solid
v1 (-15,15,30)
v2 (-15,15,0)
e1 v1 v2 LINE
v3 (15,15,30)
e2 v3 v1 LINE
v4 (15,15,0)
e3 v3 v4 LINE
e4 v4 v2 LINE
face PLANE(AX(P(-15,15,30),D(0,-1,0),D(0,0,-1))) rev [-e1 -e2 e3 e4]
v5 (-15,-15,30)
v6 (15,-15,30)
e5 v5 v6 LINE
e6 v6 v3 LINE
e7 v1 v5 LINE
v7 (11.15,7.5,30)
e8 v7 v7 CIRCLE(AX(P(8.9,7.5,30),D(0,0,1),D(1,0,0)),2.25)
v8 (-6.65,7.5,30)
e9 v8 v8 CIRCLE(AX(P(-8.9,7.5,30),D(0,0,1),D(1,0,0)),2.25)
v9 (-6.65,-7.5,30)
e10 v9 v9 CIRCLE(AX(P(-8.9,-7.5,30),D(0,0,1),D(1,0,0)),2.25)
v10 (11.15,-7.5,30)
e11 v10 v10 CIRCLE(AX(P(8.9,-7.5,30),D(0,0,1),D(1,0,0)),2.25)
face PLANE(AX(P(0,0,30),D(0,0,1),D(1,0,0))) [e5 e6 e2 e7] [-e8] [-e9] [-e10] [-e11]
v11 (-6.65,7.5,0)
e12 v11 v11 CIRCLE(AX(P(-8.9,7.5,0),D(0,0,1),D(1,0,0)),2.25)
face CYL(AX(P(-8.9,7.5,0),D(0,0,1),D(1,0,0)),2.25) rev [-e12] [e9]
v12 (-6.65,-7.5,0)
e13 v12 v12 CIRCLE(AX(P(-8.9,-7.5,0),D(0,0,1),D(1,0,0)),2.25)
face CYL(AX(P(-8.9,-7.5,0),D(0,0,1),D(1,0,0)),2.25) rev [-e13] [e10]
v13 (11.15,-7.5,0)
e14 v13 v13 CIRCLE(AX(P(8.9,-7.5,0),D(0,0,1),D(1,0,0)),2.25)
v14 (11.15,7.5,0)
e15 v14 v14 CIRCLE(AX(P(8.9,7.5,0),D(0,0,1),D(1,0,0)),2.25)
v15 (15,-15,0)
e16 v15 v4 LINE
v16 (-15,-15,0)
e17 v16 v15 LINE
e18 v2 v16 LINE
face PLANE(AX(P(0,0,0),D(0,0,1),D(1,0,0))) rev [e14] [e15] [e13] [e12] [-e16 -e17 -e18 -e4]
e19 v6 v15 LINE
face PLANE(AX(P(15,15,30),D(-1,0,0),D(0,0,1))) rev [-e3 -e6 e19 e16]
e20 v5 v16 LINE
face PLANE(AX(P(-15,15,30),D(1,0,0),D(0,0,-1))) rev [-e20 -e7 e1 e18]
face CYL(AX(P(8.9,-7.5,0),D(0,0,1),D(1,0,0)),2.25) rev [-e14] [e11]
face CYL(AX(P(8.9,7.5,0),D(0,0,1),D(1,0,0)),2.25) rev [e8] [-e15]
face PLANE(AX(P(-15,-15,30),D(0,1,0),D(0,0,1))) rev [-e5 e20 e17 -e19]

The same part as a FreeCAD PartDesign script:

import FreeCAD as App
import Part
import Sketcher
from FreeCAD import Vector
Q = App.Units.Quantity

doc = App.newDocument("Part")
params = doc.addObject("Spreadsheet::Sheet", "Params")
for row, (alias, value) in enumerate([
    ("sketch1_width", "30 mm"),
    ("pad1_length", "30 mm"),
    ("sketch2_diameter", "4.5 mm"),
], start=1):
    params.set(f"A{row}", alias)
    params.set(f"B{row}", "=" + value)
    params.setAlias(f"B{row}", alias)

body = doc.addObject("PartDesign::Body", "Body")

# Sketch on XY plane
sketch1 = doc.addObject("Sketcher::SketchObject", "Sketch")
body.addObject(sketch1)
sketch1.AttachmentSupport = (doc.XY_Plane, [""])
sketch1.MapMode = "FlatFace"
sketch1.addGeometry([
    Part.LineSegment(Vector(-15, 15, 0), Vector(-15, -15, 0)),
    Part.LineSegment(Vector(-15, -15, 0), Vector(15, -15, 0)),
    Part.LineSegment(Vector(15, -15, 0), Vector(15, 15, 0)),
    Part.LineSegment(Vector(15, 15, 0), Vector(-15, 15, 0)),
], False)
sketch1.addConstraint([
    Sketcher.Constraint("Coincident", 0, 2, 1, 1),
    Sketcher.Constraint("Coincident", 1, 2, 2, 1),
    Sketcher.Constraint("Coincident", 2, 2, 3, 1),
    Sketcher.Constraint("Coincident", 3, 2, 0, 1),
    Sketcher.Constraint("Vertical", 0),
    Sketcher.Constraint("Horizontal", 1),
    Sketcher.Constraint("Vertical", 2),
    Sketcher.Constraint("Horizontal", 3),
    Sketcher.Constraint("Symmetric", 0, 2, 2, 2, -1, 1),
    Sketcher.Constraint("Equal", 3, 0),
    Sketcher.Constraint("DistanceX", 1, 1, 1, 2, Q("30 mm")),
])
sketch1.setExpression("Constraints[10]", "Params.sketch1_width")
pad1 = doc.addObject("PartDesign::Pad", "Pad")
body.addObject(pad1)
pad1.Profile = sketch1
pad1.setExpression("Length", "Params.pad1_length")

# Sketch on XY plane
sketch2 = doc.addObject("Sketcher::SketchObject", "Sketch001")
body.addObject(sketch2)
sketch2.AttachmentSupport = (doc.XY_Plane, [""])
sketch2.MapMode = "FlatFace"
sketch2.AttachmentOffset = App.Placement(Vector(0, 0, 30), App.Rotation())
sketch2.addGeometry([
    Part.Circle(Vector(8.9, 7.5, 0), Vector(0, 0, 1), 2.2),
    Part.Circle(Vector(8.9, -7.5, 0), Vector(0, 0, 1), 2.2),
    Part.Circle(Vector(-8.9, 7.5, 0), Vector(0, 0, 1), 2.2),
    Part.Circle(Vector(-8.9, -7.5, 0), Vector(0, 0, 1), 2.2),
], False)
sketch2.addConstraint([
    Sketcher.Constraint("Equal", 0, 1),
    Sketcher.Constraint("Equal", 1, 2),
    Sketcher.Constraint("Equal", 2, 3),
    Sketcher.Constraint("Symmetric", 1, 3, 2, 3, -1, 1),
    Sketcher.Constraint("Symmetric", 0, 3, 3, 3, -1, 1),
    Sketcher.Constraint("Symmetric", 0, 3, 2, 3, -2),
    Sketcher.Constraint("Diameter", 0, Q("4.5 mm")),
    Sketcher.Constraint("DistanceY", 1, 3, 0, 3, Q("15 mm")),
    Sketcher.Constraint("DistanceX", -1, 1, 0, 3, Q("8.9 mm")),
])
sketch2.setExpression("Constraints[6]", "Params.sketch2_diameter")
pocket1 = doc.addObject("PartDesign::Pocket", "Pocket")
body.addObject(pocket1)
pocket1.Profile = sketch2
pocket1.Type = "ThroughAll"

doc.recompute()
